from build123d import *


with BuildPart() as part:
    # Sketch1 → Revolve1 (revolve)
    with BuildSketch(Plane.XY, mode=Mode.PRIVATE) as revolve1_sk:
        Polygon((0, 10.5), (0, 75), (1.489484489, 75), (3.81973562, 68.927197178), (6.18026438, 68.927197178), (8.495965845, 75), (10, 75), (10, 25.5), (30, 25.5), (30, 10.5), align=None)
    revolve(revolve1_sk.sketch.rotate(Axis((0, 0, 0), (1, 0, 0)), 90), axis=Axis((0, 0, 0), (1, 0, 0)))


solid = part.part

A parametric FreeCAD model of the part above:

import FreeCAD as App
import Part
import Sketcher

V = App.Vector
Q = App.Units.Quantity

doc = App.newDocument("Part")
body = doc.addObject("PartDesign::Body", "Body")

# Sketch on XY plane
sketch1 = doc.addObject("Sketcher::SketchObject", "Sketch")
body.addObject(sketch1)
sketch1.AttachmentSupport = (doc.XY_Plane, [""])
sketch1.MapMode = "FlatFace"
sketch1.addGeometry(Part.LineSegment(V(0, 75, 0), V(0, 10.5, 0)), False)
sketch1.addGeometry(Part.LineSegment(V(0, 10.5, 0), V(30, 10.5, 0)), False)
sketch1.addGeometry(Part.LineSegment(V(30, 10.5, 0), V(30, 25.5, 0)), False)
sketch1.addGeometry(Part.LineSegment(V(30, 25.5, 0), V(10, 25.5, 0)), False)
sketch1.addGeometry(Part.LineSegment(V(10, 25.5, 0), V(10, 75, 0)), False)
sketch1.addGeometry(Part.LineSegment(V(10, 75, 0), V(8.5, 75, 0)), False)
sketch1.addGeometry(Part.LineSegment(V(8.5, 75, 0), V(6.2, 68.9, 0)), False)
sketch1.addGeometry(Part.LineSegment(V(6.2, 68.9, 0), V(3.8, 68.9, 0)), False)
sketch1.addGeometry(Part.LineSegment(V(3.8, 68.9, 0), V(1.5, 75, 0)), False)
sketch1.addGeometry(Part.LineSegment(V(1.5, 75, 0), V(0, 75, 0)), False)
sketch1.addConstraint(Sketcher.Constraint("Coincident", 0, 2, 1, 1))
sketch1.addConstraint(Sketcher.Constraint("Coincident", 1, 2, 2, 1))
sketch1.addConstraint(Sketcher.Constraint("Coincident", 2, 2, 3, 1))
sketch1.addConstraint(Sketcher.Constraint("Coincident", 3, 2, 4, 1))
sketch1.addConstraint(Sketcher.Constraint("Coincident", 4, 2, 5, 1))
sketch1.addConstraint(Sketcher.Constraint("Coincident", 5, 2, 6, 1))
sketch1.addConstraint(Sketcher.Constraint("Coincident", 6, 2, 7, 1))
sketch1.addConstraint(Sketcher.Constraint("Coincident", 7, 2, 8, 1))
sketch1.addConstraint(Sketcher.Constraint("Coincident", 8, 2, 9, 1))
sketch1.addConstraint(Sketcher.Constraint("Coincident", 9, 2, 0, 1))
sketch1.addConstraint(Sketcher.Constraint("Vertical", 0))
sketch1.addConstraint(Sketcher.Constraint("Horizontal", 1))
sketch1.addConstraint(Sketcher.Constraint("Vertical", 2))
sketch1.addConstraint(Sketcher.Constraint("Horizontal", 3))
sketch1.addConstraint(Sketcher.Constraint("Vertical", 4))
sketch1.addConstraint(Sketcher.Constraint("Horizontal", 5))
sketch1.addConstraint(Sketcher.Constraint("Horizontal", 7))
sketch1.addConstraint(Sketcher.Constraint("Horizontal", 9))
sketch1.addConstraint(Sketcher.Constraint("PointOnObject", 0, 2, -2))
sketch1.addConstraint(Sketcher.Constraint("Horizontal", 5, 2, 8, 2))
sketch1.addConstraint(Sketcher.Constraint("DistanceX", 1, 1, 1, 2, Q("30 mm")))
sketch1.addConstraint(Sketcher.Constraint("DistanceX", 3, 2, 3, 1, Q("20 mm")))
sketch1.addConstraint(Sketcher.Constraint("DistanceY", 2, 1, 2, 2, Q("15 mm")))
sketch1.addConstraint(Sketcher.Constraint("DistanceY", 0, 2, 0, 1, Q("64.5 mm")))
sketch1.addConstraint(Sketcher.Constraint("DistanceY", -1, 1, 4, 2, Q("75 mm")))
sketch1.addConstraint(Sketcher.Constraint("DistanceX", 7, 2, 7, 1, Q("2.360529 mm")))
sketch1.addConstraint(Sketcher.Constraint("DistanceX", 6, 2, 5, 2, Q("2.315701 mm")))
sketch1.addConstraint(Sketcher.Constraint("Distance", 6, Q("6.499339 mm")))
sketch1.addConstraint(Sketcher.Constraint("DistanceX", 5, 2, 5, 1, Q("1.504034 mm")))
sketch1.addConstraint(Sketcher.Constraint("DistanceX", 9, 2, 9, 1, Q("1.489484 mm")))
revolution = doc.addObject("PartDesign::Revolution", "Revolution")
body.addObject(revolution)
revolution.Profile = sketch1
revolution.ReferenceAxis = (sketch1, ["H_Axis"])
revolution.Angle = 360

doc.recompute()
